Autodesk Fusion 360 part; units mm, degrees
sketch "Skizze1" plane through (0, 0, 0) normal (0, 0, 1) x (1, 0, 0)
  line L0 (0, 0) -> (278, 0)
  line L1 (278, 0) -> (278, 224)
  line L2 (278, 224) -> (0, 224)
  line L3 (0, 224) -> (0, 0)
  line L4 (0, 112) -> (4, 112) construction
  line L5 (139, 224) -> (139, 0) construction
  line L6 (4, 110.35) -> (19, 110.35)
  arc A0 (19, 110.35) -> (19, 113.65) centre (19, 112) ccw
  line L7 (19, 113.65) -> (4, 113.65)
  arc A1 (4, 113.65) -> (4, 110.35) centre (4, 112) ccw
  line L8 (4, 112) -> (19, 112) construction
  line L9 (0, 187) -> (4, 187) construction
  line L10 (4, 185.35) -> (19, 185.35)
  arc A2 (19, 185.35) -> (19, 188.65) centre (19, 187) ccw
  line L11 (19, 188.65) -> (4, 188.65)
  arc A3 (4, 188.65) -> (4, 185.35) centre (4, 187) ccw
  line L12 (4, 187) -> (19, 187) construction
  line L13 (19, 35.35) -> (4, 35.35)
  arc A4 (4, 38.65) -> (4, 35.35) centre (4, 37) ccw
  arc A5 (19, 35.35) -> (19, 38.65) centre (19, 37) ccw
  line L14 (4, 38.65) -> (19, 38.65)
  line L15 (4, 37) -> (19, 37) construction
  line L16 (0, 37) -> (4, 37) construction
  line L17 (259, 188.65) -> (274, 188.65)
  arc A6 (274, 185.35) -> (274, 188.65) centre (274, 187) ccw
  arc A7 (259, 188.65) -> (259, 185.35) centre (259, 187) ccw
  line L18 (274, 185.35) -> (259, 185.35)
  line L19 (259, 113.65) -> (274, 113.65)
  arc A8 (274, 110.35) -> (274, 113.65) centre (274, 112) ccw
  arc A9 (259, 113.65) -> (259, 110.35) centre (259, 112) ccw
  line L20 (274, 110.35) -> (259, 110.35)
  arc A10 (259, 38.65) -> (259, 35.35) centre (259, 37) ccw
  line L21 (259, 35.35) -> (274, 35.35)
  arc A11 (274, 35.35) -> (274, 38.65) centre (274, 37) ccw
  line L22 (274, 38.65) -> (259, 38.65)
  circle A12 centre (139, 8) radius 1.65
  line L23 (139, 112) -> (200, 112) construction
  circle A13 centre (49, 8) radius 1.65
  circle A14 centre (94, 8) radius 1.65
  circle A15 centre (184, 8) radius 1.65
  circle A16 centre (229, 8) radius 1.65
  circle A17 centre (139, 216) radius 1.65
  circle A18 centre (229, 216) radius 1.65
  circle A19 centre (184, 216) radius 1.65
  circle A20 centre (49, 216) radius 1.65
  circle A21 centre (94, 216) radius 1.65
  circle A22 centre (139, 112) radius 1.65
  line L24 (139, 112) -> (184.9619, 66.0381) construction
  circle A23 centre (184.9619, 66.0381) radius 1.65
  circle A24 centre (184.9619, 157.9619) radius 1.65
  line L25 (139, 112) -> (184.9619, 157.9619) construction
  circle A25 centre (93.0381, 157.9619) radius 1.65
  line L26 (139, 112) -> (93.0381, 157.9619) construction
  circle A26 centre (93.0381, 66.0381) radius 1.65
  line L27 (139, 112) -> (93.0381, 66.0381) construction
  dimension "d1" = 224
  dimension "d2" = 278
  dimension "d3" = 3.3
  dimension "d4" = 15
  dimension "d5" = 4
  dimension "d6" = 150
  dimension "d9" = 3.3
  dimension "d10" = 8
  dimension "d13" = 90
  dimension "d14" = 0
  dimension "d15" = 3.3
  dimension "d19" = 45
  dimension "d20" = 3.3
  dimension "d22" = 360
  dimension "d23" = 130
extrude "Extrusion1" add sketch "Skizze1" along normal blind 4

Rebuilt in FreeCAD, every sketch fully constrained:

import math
import FreeCAD as App
import Part
import Sketcher
from FreeCAD import Vector
Q = App.Units.Quantity


def add_polygon(sketch, points):
    """Adds a closed chain of lines whose ends are joined by coincident constraints."""
    first, n = sketch.GeometryCount, len(points)
    for a, b in zip(points, points[1:] + points[:1]):
        sketch.addGeometry(Part.LineSegment(App.Vector(*a, 0), App.Vector(*b, 0)), False)
    for i in range(n):
        sketch.addConstraint(Sketcher.Constraint("Coincident", first + i, 2, first + (i + 1) % n, 1))

doc = App.newDocument("Part")
params = doc.addObject("Spreadsheet::Sheet", "Params")
for row, (alias, value) in enumerate([
    ("sketch1_diameter", "3.3 mm"),
    ("sketch1_width", "278 mm"),
    ("sketch1_width2", "15 mm"),
    ("sketch1_height", "224 mm"),
    ("pad1_length", "4 mm"),
], start=1):
    params.set(f"A{row}", alias)
    params.set(f"B{row}", "=" + value)
    params.setAlias(f"B{row}", alias)

body = doc.addObject("PartDesign::Body", "Body")

# Sketch on XY plane
sketch1 = body.newObject("Sketcher::SketchObject", "Sketch")
sketch1.AttachmentSupport = (doc.getObject("XY_Plane"), [""])
sketch1.MapMode = "FlatFace"
add_polygon(sketch1, [(0, 224), (0, 0), (278, 0), (278, 224)])  # lines 0-3
sketch1.addGeometry(Part.Circle(Vector(49, 8, 0), Vector(0, 0, 1), 1.6), False)  # 4
sketch1.addGeometry(Part.ArcOfCircle(Part.Circle(Vector(19, 37, 0), Vector(0, 0, 1), 1.6), math.radians(-90), math.radians(90)), False)  # 5
sketch1.addGeometry(Part.LineSegment(Vector(19, 35.4, 0), Vector(4, 35.4, 0)), False)  # 6
sketch1.addGeometry(Part.ArcOfCircle(Part.Circle(Vector(4, 37, 0), Vector(0, 0, 1), 1.6), math.radians(90), math.radians(270)), False)  # 7
sketch1.addGeometry(Part.LineSegment(Vector(4, 38.6, 0), Vector(19, 38.6, 0)), False)  # 8
sketch1.addGeometry(Part.Circle(Vector(94, 8, 0), Vector(0, 0, 1), 1.6), False)  # 9
sketch1.addGeometry(Part.Circle(Vector(93, 66, 0), Vector(0, 0, 1), 1.6), False)  # 10
sketch1.addGeometry(Part.Circle(Vector(139, 8, 0), Vector(0, 0, 1), 1.6), False)  # 11
sketch1.addGeometry(Part.Circle(Vector(184, 8, 0), Vector(0, 0, 1), 1.6), False)  # 12
sketch1.addGeometry(Part.Circle(Vector(229, 8, 0), Vector(0, 0, 1), 1.6), False)  # 13
sketch1.addGeometry(Part.ArcOfCircle(Part.Circle(Vector(259, 37, 0), Vector(0, 0, 1), 1.6), math.radians(90), math.radians(270)), False)  # 14
sketch1.addGeometry(Part.LineSegment(Vector(259, 38.6, 0), Vector(274, 38.6, 0)), False)  # 15
sketch1.addGeometry(Part.ArcOfCircle(Part.Circle(Vector(274, 37, 0), Vector(0, 0, 1), 1.6), math.radians(-90), math.radians(90)), False)  # 16
sketch1.addGeometry(Part.LineSegment(Vector(274, 35.4, 0), Vector(259, 35.4, 0)), False)  # 17
sketch1.addGeometry(Part.Circle(Vector(185, 66, 0), Vector(0, 0, 1), 1.6), False)  # 18
sketch1.addGeometry(Part.LineSegment(Vector(19, 110.3, 0), Vector(4, 110.3, 0)), False)  # 19
sketch1.addGeometry(Part.ArcOfCircle(Part.Circle(Vector(4, 112, 0), Vector(0, 0, 1), 1.7), math.radians(90), math.radians(270)), False)  # 20
sketch1.addGeometry(Part.LineSegment(Vector(4, 113.7, 0), Vector(19, 113.7, 0)), False)  # 21
sketch1.addGeometry(Part.ArcOfCircle(Part.Circle(Vector(19, 112, 0), Vector(0, 0, 1), 1.7), math.radians(-90), math.radians(90)), False)  # 22
sketch1.addGeometry(Part.Circle(Vector(93, 158, 0), Vector(0, 0, 1), 1.6), False)  # 23
sketch1.addGeometry(Part.LineSegment(Vector(19, 185.3, 0), Vector(4, 185.3, 0)), False)  # 24
sketch1.addGeometry(Part.ArcOfCircle(Part.Circle(Vector(4, 187, 0), Vector(0, 0, 1), 1.7), math.radians(90), math.radians(270)), False)  # 25
sketch1.addGeometry(Part.LineSegment(Vector(4, 188.7, 0), Vector(19, 188.7, 0)), False)  # 26
sketch1.addGeometry(Part.ArcOfCircle(Part.Circle(Vector(19, 187, 0), Vector(0, 0, 1), 1.7), math.radians(-90), math.radians(90)), False)  # 27
sketch1.addGeometry(Part.Circle(Vector(49, 216, 0), Vector(0, 0, 1), 1.6), False)  # 28
sketch1.addGeometry(Part.Circle(Vector(94, 216, 0), Vector(0, 0, 1), 1.6), False)  # 29
sketch1.addGeometry(Part.Circle(Vector(139, 112, 0), Vector(0, 0, 1), 1.6), False)  # 30
sketch1.addGeometry(Part.Circle(Vector(185, 158, 0), Vector(0, 0, 1), 1.6), False)  # 31
sketch1.addGeometry(Part.ArcOfCircle(Part.Circle(Vector(259, 112, 0), Vector(0, 0, 1), 1.7), math.radians(90), math.radians(270)), False)  # 32
sketch1.addGeometry(Part.LineSegment(Vector(259, 113.7, 0), Vector(274, 113.7, 0)), False)  # 33
sketch1.addGeometry(Part.ArcOfCircle(Part.Circle(Vector(274, 112, 0), Vector(0, 0, 1), 1.7), math.radians(-90), math.radians(90)), False)  # 34
sketch1.addGeometry(Part.LineSegment(Vector(274, 110.3, 0), Vector(259, 110.3, 0)), False)  # 35
sketch1.addGeometry(Part.Circle(Vector(139, 216, 0), Vector(0, 0, 1), 1.6), False)  # 36
sketch1.addGeometry(Part.Circle(Vector(184, 216, 0), Vector(0, 0, 1), 1.6), False)  # 37
sketch1.addGeometry(Part.ArcOfCircle(Part.Circle(Vector(259, 187, 0), Vector(0, 0, 1), 1.7), math.radians(90), math.radians(270)), False)  # 38
sketch1.addGeometry(Part.LineSegment(Vector(259, 188.7, 0), Vector(274, 188.7, 0)), False)  # 39
sketch1.addGeometry(Part.ArcOfCircle(Part.Circle(Vector(274, 187, 0), Vector(0, 0, 1), 1.7), math.radians(-90), math.radians(90)), False)  # 40
sketch1.addGeometry(Part.LineSegment(Vector(274, 185.3, 0), Vector(259, 185.3, 0)), False)  # 41
sketch1.addGeometry(Part.Circle(Vector(229, 216, 0), Vector(0, 0, 1), 1.6), False)  # 42
sketch1.addConstraint([
    Sketcher.Constraint("Tangent", 5, 1, 6, 1),
    Sketcher.Constraint("Tangent", 6, 2, 7, 2),
    Sketcher.Constraint("Tangent", 7, 1, 8, 1),
    Sketcher.Constraint("Tangent", 8, 2, 5, 2),
    Sketcher.Constraint("Tangent", 14, 1, 15, 1),
    Sketcher.Constraint("Tangent", 15, 2, 16, 2),
    Sketcher.Constraint("Tangent", 16, 1, 17, 1),
    Sketcher.Constraint("Tangent", 17, 2, 14, 2),
    Sketcher.Constraint("Tangent", 19, 2, 20, 2),
    Sketcher.Constraint("Tangent", 20, 1, 21, 1),
    Sketcher.Constraint("Tangent", 21, 2, 22, 2),
    Sketcher.Constraint("Tangent", 22, 1, 19, 1),
    Sketcher.Constraint("Tangent", 24, 2, 25, 2),
    Sketcher.Constraint("Tangent", 25, 1, 26, 1),
    Sketcher.Constraint("Tangent", 26, 2, 27, 2),
    Sketcher.Constraint("Tangent", 27, 1, 24, 1),
    Sketcher.Constraint("Tangent", 32, 1, 33, 1),
    Sketcher.Constraint("Tangent", 33, 2, 34, 2),
    Sketcher.Constraint("Tangent", 34, 1, 35, 1),
    Sketcher.Constraint("Tangent", 35, 2, 32, 2),
    Sketcher.Constraint("Tangent", 38, 1, 39, 1),
    Sketcher.Constraint("Tangent", 39, 2, 40, 2),
    Sketcher.Constraint("Tangent", 40, 1, 41, 1),
    Sketcher.Constraint("Tangent", 41, 2, 38, 2),
    Sketcher.Constraint("Vertical", 0),
    Sketcher.Constraint("Horizontal", 1),
    Sketcher.Constraint("Vertical", 2),
    Sketcher.Constraint("Horizontal", 3),
    Sketcher.Constraint("Horizontal", 6),
    Sketcher.Constraint("Horizontal", 8),
    Sketcher.Constraint("Horizontal", 15),
    Sketcher.Constraint("Horizontal", 17),
    Sketcher.Constraint("Horizontal", 19),
    Sketcher.Constraint("Horizontal", 21),
    Sketcher.Constraint("Horizontal", 24),
    Sketcher.Constraint("Horizontal", 26),
    Sketcher.Constraint("Horizontal", 33),
    Sketcher.Constraint("Horizontal", 35),
    Sketcher.Constraint("Horizontal", 39),
    Sketcher.Constraint("Horizontal", 41),
    Sketcher.Constraint("Coincident", 0, 2, -1, 1),
    Sketcher.Constraint("Equal", 4, 5),
    Sketcher.Constraint("Equal", 7, 9),
    Sketcher.Constraint("Equal", 9, 10),
    Sketcher.Constraint("Equal", 10, 11),
    Sketcher.Constraint("Equal", 11, 12),
    Sketcher.Constraint("Equal", 12, 13),
    Sketcher.Constraint("Equal", 13, 14),
    Sketcher.Constraint("Equal", 16, 18),
    Sketcher.Constraint("Equal", 18, 20),
    Sketcher.Constraint("Equal", 22, 23),
    Sketcher.Constraint("Equal", 23, 25),
    Sketcher.Constraint("Equal", 27, 28),
    Sketcher.Constraint("Equal", 28, 29),
    Sketcher.Constraint("Equal", 29, 30),
    Sketcher.Constraint("Equal", 30, 31),
    Sketcher.Constraint("Equal", 31, 32),
    Sketcher.Constraint("Equal", 34, 36),
    Sketcher.Constraint("Equal", 36, 37),
    Sketcher.Constraint("Equal", 37, 38),
    Sketcher.Constraint("Equal", 40, 42),
    Sketcher.Constraint("Horizontal", 4, 3, 9, 3),
    Sketcher.Constraint("Horizontal", 9, 3, 11, 3),
    Sketcher.Constraint("Horizontal", 11, 3, 12, 3),
    Sketcher.Constraint("Horizontal", 12, 3, 13, 3),
    Sketcher.Constraint("Horizontal", 7, 3, 14, 3),
    Sketcher.Constraint("Horizontal", 10, 3, 18, 3),
    Sketcher.Constraint("Horizontal", 28, 3, 29, 3),
    Sketcher.Constraint("Horizontal", 22, 3, 30, 3),
    Sketcher.Constraint("Horizontal", 23, 3, 31, 3),
    Sketcher.Constraint("Horizontal", 30, 3, 32, 3),
    Sketcher.Constraint("Horizontal", 29, 3, 36, 3),
    Sketcher.Constraint("Horizontal", 36, 3, 37, 3),
    Sketcher.Constraint("Horizontal", 27, 3, 38, 3),
    Sketcher.Constraint("Horizontal", 37, 3, 42, 3),
    Sketcher.Constraint("Vertical", 7, 3, 20, 3),
    Sketcher.Constraint("Vertical", 5, 3, 22, 3),
    Sketcher.Constraint("Vertical", 10, 3, 23, 3),
    Sketcher.Constraint("Vertical", 20, 3, 25, 3),
    Sketcher.Constraint("Vertical", 22, 3, 27, 3),
    Sketcher.Constraint("Vertical", 4, 3, 28, 3),
    Sketcher.Constraint("Vertical", 9, 3, 29, 3),
    Sketcher.Constraint("Vertical", 11, 3, 30, 3),
    Sketcher.Constraint("Vertical", 18, 3, 31, 3),
    Sketcher.Constraint("Vertical", 14, 3, 32, 3),
    Sketcher.Constraint("Vertical", 16, 3, 34, 3),
    Sketcher.Constraint("Vertical", 30, 3, 36, 3),
    Sketcher.Constraint("Vertical", 12, 3, 37, 3),
    Sketcher.Constraint("Vertical", 32, 3, 38, 3),
    Sketcher.Constraint("Vertical", 34, 3, 40, 3),
    Sketcher.Constraint("Vertical", 13, 3, 42, 3),
    Sketcher.Constraint("Equal", 8, 15),
    Sketcher.Constraint("Diameter", 4, Q("3.3 mm")),
    Sketcher.Constraint("DistanceX", 1, 1, 1, 2, Q("278 mm")),
    Sketcher.Constraint("DistanceX", 6, 2, 6, 1, Q("15 mm")),
    Sketcher.Constraint("DistanceY", 0, 2, 0, 1, Q("224 mm")),
    Sketcher.Constraint("DistanceY", -1, 1, 4, 3, Q("8 mm")),
    Sketcher.Constraint("DistanceX", -1, 1, 7, 3, Q("4 mm")),
    Sketcher.Constraint("DistanceX", 7, 3, 4, 3, Q("45 mm")),
    Sketcher.Constraint("DistanceX", 4, 3, 9, 3, Q("45 mm")),
    Sketcher.Constraint("DistanceX", 9, 3, 11, 3, Q("45 mm")),
    Sketcher.Constraint("DistanceX", 11, 3, 12, 3, Q("45 mm")),
    Sketcher.Constraint("DistanceX", 12, 3, 13, 3, Q("45 mm")),
    Sketcher.Constraint("DistanceX", 13, 3, 16, 3, Q("45 mm")),
    Sketcher.Constraint("DistanceY", 7, 3, 25, 3, Q("150 mm")),
    Sketcher.Constraint("DistanceY", 42, 3, 2, 2, Q("8 mm")),
    Sketcher.Constraint("DistanceY", -1, 1, 5, 3, Q("37 mm")),
    Sketcher.Constraint("DistanceY", -1, 1, 20, 3, Q("112 mm")),
    Sketcher.Constraint("DistanceX", -1, 1, 10, 3, Q("93.038 mm")),
    Sketcher.Constraint("DistanceY", -1, 1, 10, 3, Q("66.038 mm")),
    Sketcher.Constraint("DistanceX", -1, 1, 18, 3, Q("184.962 mm")),
    Sketcher.Constraint("DistanceY", -1, 1, 23, 3, Q("157.962 mm")),
])
sketch1.setExpression("Constraints[96]", "Params.sketch1_diameter")
sketch1.setExpression("Constraints[97]", "Params.sketch1_width")
sketch1.setExpression("Constraints[98]", "Params.sketch1_width2")
sketch1.setExpression("Constraints[99]", "Params.sketch1_height")
pad1 = body.newObject("PartDesign::Pad", "Pad")
pad1.Profile = sketch1
pad1.setExpression("Length", "Params.pad1_length")

doc.recompute()
